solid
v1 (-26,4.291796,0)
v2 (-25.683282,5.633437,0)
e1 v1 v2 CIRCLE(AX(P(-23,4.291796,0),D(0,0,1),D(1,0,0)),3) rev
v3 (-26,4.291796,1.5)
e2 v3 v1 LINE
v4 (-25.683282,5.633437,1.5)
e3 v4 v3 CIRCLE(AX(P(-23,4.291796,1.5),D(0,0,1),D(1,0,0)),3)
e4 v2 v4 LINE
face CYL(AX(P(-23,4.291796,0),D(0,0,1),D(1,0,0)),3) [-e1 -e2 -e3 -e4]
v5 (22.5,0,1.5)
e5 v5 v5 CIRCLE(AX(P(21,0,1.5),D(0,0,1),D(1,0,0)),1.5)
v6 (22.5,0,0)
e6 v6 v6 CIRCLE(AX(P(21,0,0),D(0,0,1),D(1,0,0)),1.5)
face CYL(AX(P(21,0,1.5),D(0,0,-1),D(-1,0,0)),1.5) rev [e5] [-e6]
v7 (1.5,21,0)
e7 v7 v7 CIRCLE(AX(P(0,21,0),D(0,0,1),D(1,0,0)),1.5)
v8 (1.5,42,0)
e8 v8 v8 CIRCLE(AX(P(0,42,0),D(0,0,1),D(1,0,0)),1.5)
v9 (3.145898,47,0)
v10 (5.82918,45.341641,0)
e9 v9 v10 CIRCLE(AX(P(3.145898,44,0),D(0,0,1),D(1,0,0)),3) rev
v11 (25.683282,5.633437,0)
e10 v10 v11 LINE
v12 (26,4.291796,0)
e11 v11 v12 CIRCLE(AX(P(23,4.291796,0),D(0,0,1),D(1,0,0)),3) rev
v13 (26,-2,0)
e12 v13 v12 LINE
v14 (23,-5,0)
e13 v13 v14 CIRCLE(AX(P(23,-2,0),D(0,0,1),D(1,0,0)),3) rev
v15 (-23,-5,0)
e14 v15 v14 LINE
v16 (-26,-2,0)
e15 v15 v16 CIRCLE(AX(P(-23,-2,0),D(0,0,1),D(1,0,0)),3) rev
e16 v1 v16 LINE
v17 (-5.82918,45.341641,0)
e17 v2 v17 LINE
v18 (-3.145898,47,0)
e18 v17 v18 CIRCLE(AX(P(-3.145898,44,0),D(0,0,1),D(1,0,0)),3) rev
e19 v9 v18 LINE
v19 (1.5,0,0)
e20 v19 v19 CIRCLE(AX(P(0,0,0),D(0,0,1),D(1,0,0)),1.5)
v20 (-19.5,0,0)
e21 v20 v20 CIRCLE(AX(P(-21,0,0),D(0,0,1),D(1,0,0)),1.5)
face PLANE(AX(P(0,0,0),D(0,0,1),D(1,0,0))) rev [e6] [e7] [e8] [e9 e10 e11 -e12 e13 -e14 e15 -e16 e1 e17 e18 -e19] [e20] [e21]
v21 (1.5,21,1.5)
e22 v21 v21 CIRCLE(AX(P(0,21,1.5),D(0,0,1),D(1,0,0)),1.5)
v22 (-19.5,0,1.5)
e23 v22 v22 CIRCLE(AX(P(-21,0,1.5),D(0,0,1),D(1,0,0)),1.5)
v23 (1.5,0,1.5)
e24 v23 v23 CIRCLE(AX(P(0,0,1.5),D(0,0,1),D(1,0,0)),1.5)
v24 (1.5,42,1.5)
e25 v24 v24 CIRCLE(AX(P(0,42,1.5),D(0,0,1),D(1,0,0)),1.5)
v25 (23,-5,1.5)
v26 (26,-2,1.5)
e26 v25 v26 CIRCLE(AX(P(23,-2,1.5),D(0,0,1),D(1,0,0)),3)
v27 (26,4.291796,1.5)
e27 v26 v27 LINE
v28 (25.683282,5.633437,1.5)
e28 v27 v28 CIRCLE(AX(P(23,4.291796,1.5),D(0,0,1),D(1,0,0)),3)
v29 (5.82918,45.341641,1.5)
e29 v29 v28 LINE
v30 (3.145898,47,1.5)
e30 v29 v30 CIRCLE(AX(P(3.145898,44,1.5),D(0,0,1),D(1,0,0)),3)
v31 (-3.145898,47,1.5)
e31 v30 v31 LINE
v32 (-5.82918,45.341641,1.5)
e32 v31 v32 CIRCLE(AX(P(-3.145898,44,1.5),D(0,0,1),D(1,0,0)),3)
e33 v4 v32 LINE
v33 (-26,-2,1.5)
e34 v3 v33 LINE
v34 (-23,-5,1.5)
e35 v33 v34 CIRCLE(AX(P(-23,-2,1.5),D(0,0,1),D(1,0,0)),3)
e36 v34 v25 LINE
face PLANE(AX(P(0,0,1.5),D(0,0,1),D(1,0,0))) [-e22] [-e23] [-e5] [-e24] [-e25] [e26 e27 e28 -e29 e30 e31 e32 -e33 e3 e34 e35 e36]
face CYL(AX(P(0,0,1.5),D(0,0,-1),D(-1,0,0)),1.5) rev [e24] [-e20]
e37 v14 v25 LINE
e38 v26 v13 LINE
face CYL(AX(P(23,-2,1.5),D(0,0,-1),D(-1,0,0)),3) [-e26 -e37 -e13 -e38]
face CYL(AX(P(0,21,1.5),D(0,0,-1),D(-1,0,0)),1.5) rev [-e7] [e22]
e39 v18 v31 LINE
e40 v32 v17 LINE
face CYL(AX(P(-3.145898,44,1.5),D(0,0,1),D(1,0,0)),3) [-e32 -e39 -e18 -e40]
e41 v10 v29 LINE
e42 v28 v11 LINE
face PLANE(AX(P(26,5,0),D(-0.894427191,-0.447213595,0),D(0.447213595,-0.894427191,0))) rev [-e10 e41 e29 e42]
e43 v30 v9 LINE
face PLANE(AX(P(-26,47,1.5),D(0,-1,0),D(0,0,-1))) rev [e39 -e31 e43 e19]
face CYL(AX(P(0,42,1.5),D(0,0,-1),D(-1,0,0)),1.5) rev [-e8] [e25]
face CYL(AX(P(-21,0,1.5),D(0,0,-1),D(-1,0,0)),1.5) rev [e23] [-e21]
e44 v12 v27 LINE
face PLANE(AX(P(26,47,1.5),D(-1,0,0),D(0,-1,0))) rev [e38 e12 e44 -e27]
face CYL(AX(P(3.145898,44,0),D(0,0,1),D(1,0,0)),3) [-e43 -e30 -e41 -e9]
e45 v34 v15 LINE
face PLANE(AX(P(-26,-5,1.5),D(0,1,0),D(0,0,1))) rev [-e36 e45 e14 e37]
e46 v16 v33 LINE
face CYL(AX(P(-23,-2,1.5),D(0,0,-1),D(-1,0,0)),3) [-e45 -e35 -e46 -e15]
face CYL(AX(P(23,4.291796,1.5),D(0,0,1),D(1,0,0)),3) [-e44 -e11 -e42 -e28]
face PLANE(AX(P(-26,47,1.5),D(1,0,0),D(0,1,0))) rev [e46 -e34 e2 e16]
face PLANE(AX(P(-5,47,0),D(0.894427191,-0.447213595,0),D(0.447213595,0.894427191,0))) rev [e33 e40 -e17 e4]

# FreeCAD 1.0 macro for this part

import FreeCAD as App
import Part
import Sketcher

V = App.Vector


def edges_at(feature, points):
    """Names of the edges that pass closest to the given points."""
    edges = feature.Shape.Edges
    near = lambda p: min(range(len(edges)), key=lambda i: edges[i].distToShape(Part.Vertex(*p))[0])
    return sorted({f"Edge{near(p) + 1}" for p in points})

doc = App.newDocument("Part")
body = doc.addObject("PartDesign::Body", "Body")

sketch1 = body.newObject("Sketcher::SketchObject", "Sketch")
sketch1.AttachmentSupport = (doc.getObject("XY_Plane"), [""])
sketch1.MapMode = "FlatFace"
sketch1.addGeometry([
    Part.LineSegment(V(-26, 47, 0), V(-26, -5, 0)),
    Part.LineSegment(V(-26, -5, 0), V(26, -5, 0)),
    Part.LineSegment(V(26, -5, 0), V(26, 47, 0)),
    Part.LineSegment(V(26, 47, 0), V(-26, 47, 0)),
    Part.Circle(V(-21, 0, 0), V(0, 0, 1), 1.5),
    Part.Circle(V(0, 0, 0), V(0, 0, 1), 1.5),
    Part.Circle(V(21, 0, 0), V(0, 0, 1), 1.5),
    Part.Circle(V(0, 21, 0), V(0, 0, 1), 1.5),
    Part.Circle(V(0, 42, 0), V(0, 0, 1), 1.5),
], False)
sketch1.addConstraint([
    Sketcher.Constraint("Coincident", 0, 2, 1, 1),
    Sketcher.Constraint("Coincident", 1, 2, 2, 1),
    Sketcher.Constraint("Coincident", 2, 2, 3, 1),
    Sketcher.Constraint("Coincident", 3, 2, 0, 1),
    Sketcher.Constraint("Vertical", 0),
    Sketcher.Constraint("Horizontal", 1),
    Sketcher.Constraint("Vertical", 2),
    Sketcher.Constraint("Horizontal", 3),
    Sketcher.Constraint("Coincident", 5, 3, -1, 1),
    Sketcher.Constraint("Equal", 4, 5),
    Sketcher.Constraint("Equal", 5, 6),
    Sketcher.Constraint("Equal", 6, 7),
    Sketcher.Constraint("Equal", 7, 8),
    Sketcher.Constraint("Symmetric", 4, 3, 6, 3, -1, 1),
    Sketcher.Constraint("PointOnObject", 4, 3, -1),
    Sketcher.Constraint("PointOnObject", 7, 3, -2),
    Sketcher.Constraint("PointOnObject", 8, 3, -2),
    Sketcher.Constraint("Equal", 3, 0),
    Sketcher.Constraint("Diameter", 4, 3.0),
    Sketcher.Constraint("DistanceX", 1, 1, 1, 2, 52.0),
    Sketcher.Constraint("DistanceX", 4, 3, -1, 1, 21.0),
    Sketcher.Constraint("DistanceY", -1, 1, 7, 3, 21.0),
    Sketcher.Constraint("DistanceY", -1, 1, 8, 3, 42.0),
    Sketcher.Constraint("DistanceX", 0, 2, -1, 1, 26.0),
    Sketcher.Constraint("DistanceY", 0, 2, -1, 1, 5.0),
])
pad1 = body.newObject("PartDesign::Pad", "Pad")
pad1.Profile = sketch1
pad1.Length = 1.5

sketch2 = body.newObject("Sketcher::SketchObject", "Sketch001")
sketch2.AttachmentSupport = (doc.getObject("XY_Plane"), [""])
sketch2.MapMode = "FlatFace"
sketch2.AttachmentOffset = App.Placement(V(0, 0, 1.5), App.Rotation())
sketch2.addGeometry([
    Part.LineSegment(V(-5, 47, 0), V(-26, 47, 0)),
    Part.LineSegment(V(-26, 47, 0), V(-26, 5, 0)),
    Part.LineSegment(V(-26, 5, 0), V(-5, 47, 0)),
    Part.LineSegment(V(26, 5, 0), V(26, 47, 0)),
    Part.LineSegment(V(26, 47, 0), V(5, 47, 0)),
    Part.LineSegment(V(5, 47, 0), V(26, 5, 0)),
], False)
sketch2.addConstraint([
    Sketcher.Constraint("Coincident", 0, 2, 1, 1),
    Sketcher.Constraint("Coincident", 1, 2, 2, 1),
    Sketcher.Constraint("Coincident", 2, 2, 0, 1),
    Sketcher.Constraint("Coincident", 3, 2, 4, 1),
    Sketcher.Constraint("Coincident", 4, 2, 5, 1),
    Sketcher.Constraint("Coincident", 5, 2, 3, 1),
    Sketcher.Constraint("Horizontal", 0),
    Sketcher.Constraint("Vertical", 1),
    Sketcher.Constraint("Vertical", 3),
    Sketcher.Constraint("Horizontal", 4),
    Sketcher.Constraint("Symmetric", 0, 2, 3, 2, -2),
    Sketcher.Constraint("Horizontal", 1, 2, 5, 2),
    Sketcher.Constraint("Equal", 0, 4),
    Sketcher.Constraint("DistanceX", 0, 2, 0, 1, 21.0),
    Sketcher.Constraint("DistanceY", 1, 2, 1, 1, 42.0),
    Sketcher.Constraint("DistanceX", 0, 2, -1, 1, 26.0),
    Sketcher.Constraint("DistanceY", -1, 1, 0, 2, 47.0),
])
pocket1 = body.newObject("PartDesign::Pocket", "Pocket")
pocket1.Profile = sketch2
pocket1.Type = "ThroughAll"
doc.recompute()

fillet = body.newObject("PartDesign::Fillet", "Fillet")
fillet.Base = (pocket1, edges_at(pocket1, [
    (-26, 5, 0.75),
    (-5, 47, 0.75),
    (5, 47, 0.75),
    (26, 5, 0.75),
    (26, -5, 0.75),
    (-26, -5, 0.75),
]))
fillet.Radius = 3

doc.recompute()
